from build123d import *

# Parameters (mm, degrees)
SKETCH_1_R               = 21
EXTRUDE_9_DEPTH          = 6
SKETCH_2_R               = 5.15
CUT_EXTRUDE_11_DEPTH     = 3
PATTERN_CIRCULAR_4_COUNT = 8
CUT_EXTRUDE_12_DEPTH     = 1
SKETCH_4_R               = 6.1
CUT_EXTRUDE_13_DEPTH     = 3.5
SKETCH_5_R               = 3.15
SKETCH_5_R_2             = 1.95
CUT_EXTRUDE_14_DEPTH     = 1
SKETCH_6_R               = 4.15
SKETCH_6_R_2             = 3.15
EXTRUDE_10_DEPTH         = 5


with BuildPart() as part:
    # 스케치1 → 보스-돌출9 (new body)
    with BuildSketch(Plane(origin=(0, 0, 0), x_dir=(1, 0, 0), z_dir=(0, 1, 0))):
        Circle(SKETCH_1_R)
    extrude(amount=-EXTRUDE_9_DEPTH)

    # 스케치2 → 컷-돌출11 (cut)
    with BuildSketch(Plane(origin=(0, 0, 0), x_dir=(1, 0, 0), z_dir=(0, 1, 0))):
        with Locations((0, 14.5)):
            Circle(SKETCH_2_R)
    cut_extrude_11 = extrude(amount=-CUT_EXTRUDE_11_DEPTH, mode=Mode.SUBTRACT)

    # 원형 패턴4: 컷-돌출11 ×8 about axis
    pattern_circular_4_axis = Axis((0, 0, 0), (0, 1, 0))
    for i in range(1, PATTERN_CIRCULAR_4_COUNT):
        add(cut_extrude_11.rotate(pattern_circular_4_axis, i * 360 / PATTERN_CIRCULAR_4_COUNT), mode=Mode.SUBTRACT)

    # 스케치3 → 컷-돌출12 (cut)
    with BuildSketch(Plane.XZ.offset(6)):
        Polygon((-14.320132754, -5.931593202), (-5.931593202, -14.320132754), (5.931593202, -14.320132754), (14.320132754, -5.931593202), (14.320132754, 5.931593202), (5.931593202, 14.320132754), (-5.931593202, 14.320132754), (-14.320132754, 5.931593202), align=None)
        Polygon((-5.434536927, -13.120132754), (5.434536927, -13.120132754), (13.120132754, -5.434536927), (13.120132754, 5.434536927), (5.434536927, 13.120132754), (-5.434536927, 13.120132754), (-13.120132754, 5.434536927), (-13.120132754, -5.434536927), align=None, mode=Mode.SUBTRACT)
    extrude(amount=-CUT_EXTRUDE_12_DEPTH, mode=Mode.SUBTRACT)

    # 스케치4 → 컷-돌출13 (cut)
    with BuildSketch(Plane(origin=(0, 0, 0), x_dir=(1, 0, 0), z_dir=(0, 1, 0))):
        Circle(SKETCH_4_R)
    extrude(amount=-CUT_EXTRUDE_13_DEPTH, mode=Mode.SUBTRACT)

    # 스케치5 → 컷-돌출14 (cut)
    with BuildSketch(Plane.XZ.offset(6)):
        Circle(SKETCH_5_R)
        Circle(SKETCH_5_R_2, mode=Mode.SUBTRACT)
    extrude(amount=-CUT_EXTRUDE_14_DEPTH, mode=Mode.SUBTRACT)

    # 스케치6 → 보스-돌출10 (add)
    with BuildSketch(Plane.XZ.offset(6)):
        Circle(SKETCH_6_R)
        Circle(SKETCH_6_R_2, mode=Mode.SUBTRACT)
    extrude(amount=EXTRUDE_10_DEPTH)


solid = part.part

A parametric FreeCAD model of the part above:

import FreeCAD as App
import Part
import Sketcher

V = App.Vector

doc = App.newDocument("Part")
body = doc.addObject("PartDesign::Body", "Body")

# Sketch on XZ plane
sketch1 = body.newObject("Sketcher::SketchObject", "Sketch")
sketch1.AttachmentSupport = (doc.getObject("XZ_Plane"), [""])
sketch1.MapMode = "FlatFace"
sketch1.addGeometry(Part.Circle(V(0, 0, 0), V(0, 0, 1), 21), False)
sketch1.addConstraint(Sketcher.Constraint("Coincident", 0, 3, -1, 1))
sketch1.addConstraint(Sketcher.Constraint("Diameter", 0, 42.0))
pad1 = body.newObject("PartDesign::Pad", "Pad")
pad1.Profile = sketch1
pad1.Length = 6

# Sketch on XZ plane
sketch2 = body.newObject("Sketcher::SketchObject", "Sketch001")
sketch2.AttachmentSupport = (doc.getObject("XZ_Plane"), [""])
sketch2.MapMode = "FlatFace"
sketch2.addGeometry(Part.Circle(V(0, -14.5, 0), V(0, 0, 1), 5.15), False)
sketch2.addConstraint(Sketcher.Constraint("PointOnObject", 0, 3, -2))
sketch2.addConstraint(Sketcher.Constraint("Diameter", 0, 10.3))
sketch2.addConstraint(Sketcher.Constraint("DistanceY", 0, 3, -1, 1, 14.5))
pocket1 = body.newObject("PartDesign::Pocket", "Pocket")
pocket1.Profile = sketch2
pocket1.Length = 3
pocket1.Reversed = True
doc.recompute()

polarpattern = body.newObject("PartDesign::PolarPattern", "PolarPattern")
polarpattern.Originals = [pocket1]
polarpattern.Axis = (doc.getObject("Y_Axis"), [""])
polarpattern.Angle = 360
polarpattern.Occurrences = 8
body.Tip = polarpattern

# Sketch on XZ plane
sketch3 = body.newObject("Sketcher::SketchObject", "Sketch002")
sketch3.AttachmentSupport = (doc.getObject("XZ_Plane"), [""])
sketch3.MapMode = "FlatFace"
sketch3.AttachmentOffset = App.Placement(V(0, 0, 6), App.Rotation())
sketch3.addGeometry(Part.LineSegment(V(-14.320133, -5.931593, 0), V(-5.931593, -14.320133, 0)), False)
sketch3.addGeometry(Part.LineSegment(V(-5.931593, -14.320133, 0), V(5.931593, -14.320133, 0)), False)
sketch3.addGeometry(Part.LineSegment(V(5.931593, -14.320133, 0), V(14.320133, -5.931593, 0)), False)
sketch3.addGeometry(Part.LineSegment(V(14.320133, -5.931593, 0), V(14.320133, 5.931593, 0)), False)
sketch3.addGeometry(Part.LineSegment(V(14.320133, 5.931593, 0), V(5.931593, 14.320133, 0)), False)
sketch3.addGeometry(Part.LineSegment(V(5.931593, 14.320133, 0), V(-5.931593, 14.320133, 0)), False)
sketch3.addGeometry(Part.LineSegment(V(-5.931593, 14.320133, 0), V(-14.320133, 5.931593, 0)), False)
sketch3.addGeometry(Part.LineSegment(V(-14.320133, 5.931593, 0), V(-14.320133, -5.931593, 0)), False)
sketch3.addGeometry(Part.LineSegment(V(5.434537, -13.120133, 0), V(-5.434537, -13.120133, 0)), False)
sketch3.addGeometry(Part.LineSegment(V(-5.434537, -13.120133, 0), V(-13.120133, -5.434537, 0)), False)
sketch3.addGeometry(Part.LineSegment(V(-13.120133, -5.434537, 0), V(-13.120133, 5.434537, 0)), False)
sketch3.addGeometry(Part.LineSegment(V(-13.120133, 5.434537, 0), V(-5.434537, 13.120133, 0)), False)
sketch3.addGeometry(Part.LineSegment(V(-5.434537, 13.120133, 0), V(5.434537, 13.120133, 0)), False)
sketch3.addGeometry(Part.LineSegment(V(5.434537, 13.120133, 0), V(13.120133, 5.434537, 0)), False)
sketch3.addGeometry(Part.LineSegment(V(13.120133, 5.434537, 0), V(13.120133, -5.434537, 0)), False)
sketch3.addGeometry(Part.LineSegment(V(13.120133, -5.434537, 0), V(5.434537, -13.120133, 0)), False)
sketch3.addConstraint(Sketcher.Constraint("Coincident", 0, 2, 1, 1))
sketch3.addConstraint(Sketcher.Constraint("Coincident", 1, 2, 2, 1))
sketch3.addConstraint(Sketcher.Constraint("Coincident", 2, 2, 3, 1))
sketch3.addConstraint(Sketcher.Constraint("Coincident", 3, 2, 4, 1))
sketch3.addConstraint(Sketcher.Constraint("Coincident", 4, 2, 5, 1))
sketch3.addConstraint(Sketcher.Constraint("Coincident", 5, 2, 6, 1))
sketch3.addConstraint(Sketcher.Constraint("Coincident", 6, 2, 7, 1))
sketch3.addConstraint(Sketcher.Constraint("Coincident", 7, 2, 0, 1))
sketch3.addConstraint(Sketcher.Constraint("Coincident", 8, 2, 9, 1))
sketch3.addConstraint(Sketcher.Constraint("Coincident", 9, 2, 10, 1))
sketch3.addConstraint(Sketcher.Constraint("Coincident", 10, 2, 11, 1))
sketch3.addConstraint(Sketcher.Constraint("Coincident", 11, 2, 12, 1))
sketch3.addConstraint(Sketcher.Constraint("Coincident", 12, 2, 13, 1))
sketch3.addConstraint(Sketcher.Constraint("Coincident", 13, 2, 14, 1))
sketch3.addConstraint(Sketcher.Constraint("Coincident", 14, 2, 15, 1))
sketch3.addConstraint(Sketcher.Constraint("Coincident", 15, 2, 8, 1))
sketch3.addConstraint(Sketcher.Constraint("Horizontal", 1))
sketch3.addConstraint(Sketcher.Constraint("Vertical", 3))
sketch3.addConstraint(Sketcher.Constraint("Horizontal", 5))
sketch3.addConstraint(Sketcher.Constraint("Vertical", 7))
sketch3.addConstraint(Sketcher.Constraint("Horizontal", 8))
sketch3.addConstraint(Sketcher.Constraint("Vertical", 10))
sketch3.addConstraint(Sketcher.Constraint("Horizontal", 12))
sketch3.addConstraint(Sketcher.Constraint("Vertical", 14))
sketch3.addConstraint(Sketcher.Constraint("Symmetric", 0, 2, 4, 2, -1, 1))
sketch3.addConstraint(Sketcher.Constraint("Symmetric", 2, 2, 6, 2, -1, 1))
sketch3.addConstraint(Sketcher.Constraint("Symmetric", 8, 2, 12, 2, -1, 1))
sketch3.addConstraint(Sketcher.Constraint("Symmetric", 9, 2, 13, 2, -1, 1))
sketch3.addConstraint(Sketcher.Constraint("Perpendicular", 0, 2))
sketch3.addConstraint(Sketcher.Constraint("Perpendicular", 2, 4))
sketch3.addConstraint(Sketcher.Constraint("Perpendicular", 4, 6))
sketch3.addConstraint(Sketcher.Constraint("Perpendicular", 6, 9))
sketch3.addConstraint(Sketcher.Constraint("Perpendicular", 9, 11))
sketch3.addConstraint(Sketcher.Constraint("Perpendicular", 13, 15))
sketch3.addConstraint(Sketcher.Constraint("Horizontal", 3, 2, 6, 2))
sketch3.addConstraint(Sketcher.Constraint("Horizontal", 10, 2, 13, 2))
sketch3.addConstraint(Sketcher.Constraint("Horizontal", 9, 2, 14, 2))
sketch3.addConstraint(Sketcher.Constraint("Vertical", 1, 2, 4, 2))
sketch3.addConstraint(Sketcher.Constraint("Equal", 5, 3))
sketch3.addConstraint(Sketcher.Constraint("Equal", 12, 10))
sketch3.addConstraint(Sketcher.Constraint("DistanceY", 0, 2, 8, 2, 1.2))
sketch3.addConstraint(Sketcher.Constraint("DistanceX", 1, 1, 1, 2, 11.863186))
sketch3.addConstraint(Sketcher.Constraint("DistanceX", 8, 2, 8, 1, 10.869074))
sketch3.addConstraint(Sketcher.Constraint("DistanceX", 1, 2, 2, 2, 8.38854))
pocket2 = body.newObject("PartDesign::Pocket", "Pocket001")
pocket2.Profile = sketch3
pocket2.Length = 1

# Sketch on XZ plane
sketch4 = body.newObject("Sketcher::SketchObject", "Sketch003")
sketch4.AttachmentSupport = (doc.getObject("XZ_Plane"), [""])
sketch4.MapMode = "FlatFace"
sketch4.addGeometry(Part.Circle(V(0, 0, 0), V(0, 0, 1), 6.1), False)
sketch4.addConstraint(Sketcher.Constraint("Coincident", 0, 3, -1, 1))
sketch4.addConstraint(Sketcher.Constraint("Diameter", 0, 12.2))
pocket3 = body.newObject("PartDesign::Pocket", "Pocket002")
pocket3.Profile = sketch4
pocket3.Length = 3.5
pocket3.Reversed = True

# Sketch on XZ plane
sketch5 = body.newObject("Sketcher::SketchObject", "Sketch004")
sketch5.AttachmentSupport = (doc.getObject("XZ_Plane"), [""])
sketch5.MapMode = "FlatFace"
sketch5.AttachmentOffset = App.Placement(V(0, 0, 6), App.Rotation())
sketch5.addGeometry(Part.Circle(V(0, 0, 0), V(0, 0, 1), 3.15), False)
sketch5.addGeometry(Part.Circle(V(0, 0, 0), V(0, 0, 1), 1.95), False)
sketch5.addConstraint(Sketcher.Constraint("Coincident", 0, 3, -1, 1))
sketch5.addConstraint(Sketcher.Constraint("Coincident", 1, 3, -1, 1))
sketch5.addConstraint(Sketcher.Constraint("Diameter", 0, 6.3))
sketch5.addConstraint(Sketcher.Constraint("Diameter", 1, 3.9))
pocket4 = body.newObject("PartDesign::Pocket", "Pocket003")
pocket4.Profile = sketch5
pocket4.Length = 1

# Sketch on XZ plane
sketch6 = body.newObject("Sketcher::SketchObject", "Sketch005")
sketch6.AttachmentSupport = (doc.getObject("XZ_Plane"), [""])
sketch6.MapMode = "FlatFace"
sketch6.AttachmentOffset = App.Placement(V(0, 0, 6), App.Rotation())
sketch6.addGeometry(Part.Circle(V(0, 0, 0), V(0, 0, 1), 4.15), False)
sketch6.addGeometry(Part.Circle(V(0, 0, 0), V(0, 0, 1), 3.15), False)
sketch6.addConstraint(Sketcher.Constraint("Coincident", 0, 3, -1, 1))
sketch6.addConstraint(Sketcher.Constraint("Coincident", 1, 3, -1, 1))
sketch6.addConstraint(Sketcher.Constraint("Diameter", 0, 8.3))
sketch6.addConstraint(Sketcher.Constraint("Diameter", 1, 6.3))
pad2 = body.newObject("PartDesign::Pad", "Pad001")
pad2.Profile = sketch6
pad2.Length = 5

doc.recompute()
